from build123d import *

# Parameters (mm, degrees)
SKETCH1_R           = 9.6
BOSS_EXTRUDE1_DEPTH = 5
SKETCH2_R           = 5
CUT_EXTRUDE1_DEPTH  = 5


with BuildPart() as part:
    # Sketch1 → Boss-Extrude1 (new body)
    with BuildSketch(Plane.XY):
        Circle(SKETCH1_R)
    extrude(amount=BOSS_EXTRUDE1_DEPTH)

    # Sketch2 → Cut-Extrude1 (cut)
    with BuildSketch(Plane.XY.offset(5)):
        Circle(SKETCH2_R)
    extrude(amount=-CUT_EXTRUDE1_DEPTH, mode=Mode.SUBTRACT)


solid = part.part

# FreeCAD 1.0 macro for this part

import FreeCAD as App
import Part
import Sketcher

doc = App.newDocument("Part")
body = doc.addObject("PartDesign::Body", "Body")

sketch1 = doc.addObject("Sketcher::SketchObject", "Sketch")
body.addObject(sketch1)
sketch1.AttachmentSupport = (doc.XY_Plane, [""])
sketch1.MapMode = "FlatFace"
sketch1.addGeometry(Part.Circle(App.Vector(0, 0, 0), App.Vector(0, 0, 1), 10), False)
sketch1.addConstraint(Sketcher.Constraint("Coincident", 0, 3, -1, 1))
sketch1.addConstraint(Sketcher.Constraint("Diameter", 0, 19.2))
pad1 = doc.addObject("PartDesign::Pad", "Pad")
body.addObject(pad1)
pad1.Profile = sketch1
pad1.Length = 5

sketch2 = doc.addObject("Sketcher::SketchObject", "Sketch001")
body.addObject(sketch2)
sketch2.AttachmentSupport = (doc.XY_Plane, [""])
sketch2.MapMode = "FlatFace"
sketch2.AttachmentOffset = App.Placement(App.Vector(0, 0, 5), App.Rotation())
sketch2.addGeometry(Part.Circle(App.Vector(0, 0, 0), App.Vector(0, 0, 1), 5), False)
sketch2.addConstraint(Sketcher.Constraint("Coincident", 0, 3, -1, 1))
sketch2.addConstraint(Sketcher.Constraint("Diameter", 0, 10.0))
pocket1 = doc.addObject("PartDesign::Pocket", "Pocket")
body.addObject(pocket1)
pocket1.Profile = sketch2
pocket1.Length = 5

doc.recompute()
